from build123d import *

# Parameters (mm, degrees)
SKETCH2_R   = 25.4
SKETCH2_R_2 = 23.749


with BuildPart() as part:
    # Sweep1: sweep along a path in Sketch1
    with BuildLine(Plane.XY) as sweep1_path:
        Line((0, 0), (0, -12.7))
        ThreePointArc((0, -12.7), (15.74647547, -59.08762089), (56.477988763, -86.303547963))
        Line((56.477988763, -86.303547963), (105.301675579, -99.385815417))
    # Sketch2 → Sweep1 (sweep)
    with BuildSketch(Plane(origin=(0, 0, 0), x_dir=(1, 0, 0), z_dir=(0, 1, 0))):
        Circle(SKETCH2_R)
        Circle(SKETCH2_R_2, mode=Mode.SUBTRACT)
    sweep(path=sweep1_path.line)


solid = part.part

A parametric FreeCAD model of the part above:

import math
import FreeCAD as App
import Part
import Sketcher
Q = App.Units.Quantity

doc = App.newDocument("Part")
body = doc.addObject("PartDesign::Body", "Body")

# Sketch on XZ plane
sketch1 = body.newObject("Sketcher::SketchObject", "Sketch")
sketch1.AttachmentSupport = (doc.getObject("XZ_Plane"), [""])
sketch1.MapMode = "FlatFace"
sketch1.addGeometry(Part.Circle(App.Vector(0, 0, 0), App.Vector(0, 0, 1), 25), False)
sketch1.addGeometry(Part.Circle(App.Vector(0, 0, 0), App.Vector(0, 0, 1), 24), False)
sketch1.addConstraint(Sketcher.Constraint("Coincident", 0, 3, -1, 1))
sketch1.addConstraint(Sketcher.Constraint("Coincident", 1, 3, -1, 1))
sketch1.addConstraint(Sketcher.Constraint("Diameter", 0, Q("2 in")))
sketch1.addConstraint(Sketcher.Constraint("Diameter", 1, Q("1.87 in")))

# Sketch on XY plane
sketch2 = body.newObject("Sketcher::SketchObject", "Sketch001")
sketch2.AttachmentSupport = (doc.getObject("XY_Plane"), [""])
sketch2.MapMode = "FlatFace"
sketch2.addGeometry(Part.LineSegment(App.Vector(0, 0, 0), App.Vector(0, -13, 0)), False)
sketch2.addGeometry(Part.ArcOfCircle(Part.Circle(App.Vector(76, -13, 0), App.Vector(0, 0, 1), 76), math.radians(-180), math.radians(-105)), False)
sketch2.addGeometry(Part.LineSegment(App.Vector(56, -86, 0), App.Vector(105, -99, 0)), False)
sketch2.addConstraint(Sketcher.Constraint("Tangent", 0, 2, 1, 1))
sketch2.addConstraint(Sketcher.Constraint("Tangent", 1, 2, 2, 1))
sketch2.addConstraint(Sketcher.Constraint("Vertical", 0))
sketch2.addConstraint(Sketcher.Constraint("Coincident", 0, 1, -1, 1))
sketch2.addConstraint(Sketcher.Constraint("Radius", 1, Q("3 in")))
sketch2.addConstraint(Sketcher.Constraint("DistanceY", 0, 2, 0, 1, Q("0.5 in")))
sketch2.addConstraint(Sketcher.Constraint("Angle", 2, Q("-15 deg")))
sketch2.addConstraint(Sketcher.Constraint("Distance", 2, Q("1.99 in")))
doc.recompute()

additivepipe = body.newObject("PartDesign::AdditivePipe", "AdditivePipe")
additivepipe.Profile = sketch1
additivepipe.Spine = (sketch2, ["Edge1", "Edge2", "Edge3"])

doc.recompute()
